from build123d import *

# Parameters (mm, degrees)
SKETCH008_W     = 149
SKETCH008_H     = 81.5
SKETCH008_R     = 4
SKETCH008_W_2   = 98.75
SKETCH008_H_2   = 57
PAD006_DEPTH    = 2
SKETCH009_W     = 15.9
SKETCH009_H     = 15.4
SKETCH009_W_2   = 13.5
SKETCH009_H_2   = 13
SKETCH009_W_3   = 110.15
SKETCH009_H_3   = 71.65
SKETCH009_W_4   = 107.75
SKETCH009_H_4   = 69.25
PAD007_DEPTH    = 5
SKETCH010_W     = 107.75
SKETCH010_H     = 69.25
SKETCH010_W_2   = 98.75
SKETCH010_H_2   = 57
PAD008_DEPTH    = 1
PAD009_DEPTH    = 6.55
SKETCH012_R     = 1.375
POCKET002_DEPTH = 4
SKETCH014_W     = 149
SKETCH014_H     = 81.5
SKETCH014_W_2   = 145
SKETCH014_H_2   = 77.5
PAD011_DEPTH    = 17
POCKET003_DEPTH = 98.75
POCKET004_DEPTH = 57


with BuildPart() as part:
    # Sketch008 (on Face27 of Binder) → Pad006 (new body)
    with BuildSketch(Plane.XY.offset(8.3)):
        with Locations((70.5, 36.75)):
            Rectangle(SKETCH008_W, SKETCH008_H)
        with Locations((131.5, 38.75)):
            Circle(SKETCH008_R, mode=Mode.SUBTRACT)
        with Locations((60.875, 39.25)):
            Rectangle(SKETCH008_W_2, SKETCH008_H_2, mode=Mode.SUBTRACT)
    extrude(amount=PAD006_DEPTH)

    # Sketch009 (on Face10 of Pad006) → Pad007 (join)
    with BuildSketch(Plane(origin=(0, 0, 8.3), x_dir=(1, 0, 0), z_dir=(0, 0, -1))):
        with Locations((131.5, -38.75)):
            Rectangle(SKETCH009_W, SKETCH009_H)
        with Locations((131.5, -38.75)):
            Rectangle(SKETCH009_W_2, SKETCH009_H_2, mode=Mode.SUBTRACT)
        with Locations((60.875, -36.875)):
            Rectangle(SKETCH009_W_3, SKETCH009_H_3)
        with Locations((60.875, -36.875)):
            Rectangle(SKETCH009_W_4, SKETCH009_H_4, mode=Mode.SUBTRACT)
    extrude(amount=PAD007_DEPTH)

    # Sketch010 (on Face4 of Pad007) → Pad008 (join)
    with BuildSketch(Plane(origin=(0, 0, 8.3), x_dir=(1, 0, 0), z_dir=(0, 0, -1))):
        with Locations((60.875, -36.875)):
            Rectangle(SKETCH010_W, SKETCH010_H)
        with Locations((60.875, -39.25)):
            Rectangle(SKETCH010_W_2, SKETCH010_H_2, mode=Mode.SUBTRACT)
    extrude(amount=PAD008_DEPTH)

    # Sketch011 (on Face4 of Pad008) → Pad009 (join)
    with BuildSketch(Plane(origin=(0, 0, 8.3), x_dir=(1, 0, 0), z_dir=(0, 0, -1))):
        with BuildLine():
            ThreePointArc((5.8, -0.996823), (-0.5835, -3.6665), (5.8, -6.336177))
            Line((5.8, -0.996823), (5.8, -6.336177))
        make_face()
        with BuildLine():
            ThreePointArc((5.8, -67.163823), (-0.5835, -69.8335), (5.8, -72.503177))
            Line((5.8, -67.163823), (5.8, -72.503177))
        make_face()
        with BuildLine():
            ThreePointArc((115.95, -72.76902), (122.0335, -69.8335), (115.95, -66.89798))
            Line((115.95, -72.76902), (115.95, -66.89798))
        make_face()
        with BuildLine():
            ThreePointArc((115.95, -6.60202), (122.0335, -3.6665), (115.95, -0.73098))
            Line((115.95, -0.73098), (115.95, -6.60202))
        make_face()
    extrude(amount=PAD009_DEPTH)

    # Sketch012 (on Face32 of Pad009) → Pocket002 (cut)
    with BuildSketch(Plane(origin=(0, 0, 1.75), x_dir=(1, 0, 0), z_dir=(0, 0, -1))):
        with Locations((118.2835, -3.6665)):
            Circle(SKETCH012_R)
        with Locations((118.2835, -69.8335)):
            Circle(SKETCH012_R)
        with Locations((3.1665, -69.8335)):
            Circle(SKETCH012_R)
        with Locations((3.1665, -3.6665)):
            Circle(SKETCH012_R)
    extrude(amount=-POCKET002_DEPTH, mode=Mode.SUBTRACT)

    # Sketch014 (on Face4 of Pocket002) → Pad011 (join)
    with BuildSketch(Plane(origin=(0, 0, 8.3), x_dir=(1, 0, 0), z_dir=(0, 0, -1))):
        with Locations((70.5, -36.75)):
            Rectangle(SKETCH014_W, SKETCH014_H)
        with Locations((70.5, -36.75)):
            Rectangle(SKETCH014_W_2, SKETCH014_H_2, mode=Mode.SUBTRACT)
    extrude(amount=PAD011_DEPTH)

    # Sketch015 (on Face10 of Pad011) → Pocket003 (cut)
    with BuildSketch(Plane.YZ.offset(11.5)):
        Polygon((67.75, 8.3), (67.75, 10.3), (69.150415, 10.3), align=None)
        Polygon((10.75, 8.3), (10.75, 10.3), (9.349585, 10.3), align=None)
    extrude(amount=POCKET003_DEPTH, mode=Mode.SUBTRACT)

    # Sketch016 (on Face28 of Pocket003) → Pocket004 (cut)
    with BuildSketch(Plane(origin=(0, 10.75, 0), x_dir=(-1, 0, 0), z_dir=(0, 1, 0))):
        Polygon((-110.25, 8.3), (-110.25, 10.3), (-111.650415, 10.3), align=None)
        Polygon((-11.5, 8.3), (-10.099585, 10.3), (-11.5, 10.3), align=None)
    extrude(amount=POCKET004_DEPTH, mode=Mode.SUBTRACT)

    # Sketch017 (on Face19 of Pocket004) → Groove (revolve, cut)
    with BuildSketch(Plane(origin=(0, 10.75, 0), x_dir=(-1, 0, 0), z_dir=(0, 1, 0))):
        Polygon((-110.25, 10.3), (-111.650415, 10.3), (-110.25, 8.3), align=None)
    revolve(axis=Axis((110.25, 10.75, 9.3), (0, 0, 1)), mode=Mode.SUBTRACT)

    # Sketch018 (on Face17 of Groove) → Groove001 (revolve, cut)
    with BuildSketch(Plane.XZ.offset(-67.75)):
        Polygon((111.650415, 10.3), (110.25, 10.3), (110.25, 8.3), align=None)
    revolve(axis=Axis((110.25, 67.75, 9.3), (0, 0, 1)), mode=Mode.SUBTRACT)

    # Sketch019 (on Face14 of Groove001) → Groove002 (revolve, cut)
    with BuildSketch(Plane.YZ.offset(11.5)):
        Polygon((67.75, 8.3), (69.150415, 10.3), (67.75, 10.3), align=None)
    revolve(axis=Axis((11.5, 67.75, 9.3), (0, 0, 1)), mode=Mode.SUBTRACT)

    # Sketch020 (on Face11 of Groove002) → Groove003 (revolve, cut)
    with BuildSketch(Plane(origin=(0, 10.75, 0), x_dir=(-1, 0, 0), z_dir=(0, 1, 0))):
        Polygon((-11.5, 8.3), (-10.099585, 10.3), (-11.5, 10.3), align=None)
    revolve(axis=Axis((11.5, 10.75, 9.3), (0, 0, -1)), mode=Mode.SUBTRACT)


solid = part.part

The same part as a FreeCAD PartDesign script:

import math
import FreeCAD as App
import Part
import Sketcher
from FreeCAD import Vector
Q = App.Units.Quantity


def add_polygon(sketch, points):
    """Adds a closed chain of lines whose ends are joined by coincident constraints."""
    first, n = sketch.GeometryCount, len(points)
    for a, b in zip(points, points[1:] + points[:1]):
        sketch.addGeometry(Part.LineSegment(App.Vector(*a, 0), App.Vector(*b, 0)), False)
    for i in range(n):
        sketch.addConstraint(Sketcher.Constraint("Coincident", first + i, 2, first + (i + 1) % n, 1))

doc = App.newDocument("Part")
body = doc.addObject("PartDesign::Body", "Body")

# Sketch on XY plane
sketch1 = body.newObject("Sketcher::SketchObject", "Sketch")
sketch1.AttachmentSupport = (doc.getObject("XY_Plane"), [""])
sketch1.MapMode = "FlatFace"
sketch1.AttachmentOffset = App.Placement(Vector(0, 0, 8.3), App.Rotation())
add_polygon(sketch1, [(-4, 77.5), (-4, -4), (145, -4), (145, 77.5)])  # lines 0-3
sketch1.addGeometry(Part.Circle(Vector(131.5, 38.8, 0), Vector(0, 0, 1), 4), False)  # 4
add_polygon(sketch1, [(110.2, 10.8), (11.5, 10.8), (11.5, 67.8), (110.2, 67.8)])  # lines 5-8
sketch1.addConstraint(Sketcher.Constraint("Vertical", 0))
sketch1.addConstraint(Sketcher.Constraint("Horizontal", 1))
sketch1.addConstraint(Sketcher.Constraint("Vertical", 2))
sketch1.addConstraint(Sketcher.Constraint("Horizontal", 3))
sketch1.addConstraint(Sketcher.Constraint("Horizontal", 5))
sketch1.addConstraint(Sketcher.Constraint("Vertical", 6))
sketch1.addConstraint(Sketcher.Constraint("Horizontal", 7))
sketch1.addConstraint(Sketcher.Constraint("Vertical", 8))
sketch1.addConstraint(Sketcher.Constraint("Diameter", 4, 8.0))
sketch1.addConstraint(Sketcher.Constraint("DistanceX", 1, 1, 1, 2, 149.0))
sketch1.addConstraint(Sketcher.Constraint("DistanceY", 6, 1, 6, 2, 57.0))
sketch1.addConstraint(Sketcher.Constraint("DistanceY", 0, 2, 0, 1, 81.5))
sketch1.addConstraint(Sketcher.Constraint("DistanceX", 0, 2, -1, 1, 4.0))
sketch1.addConstraint(Sketcher.Constraint("DistanceY", 0, 2, -1, 1, 4.0))
sketch1.addConstraint(Sketcher.Constraint("DistanceX", 5, 2, 4, 3, 120.0))
sketch1.addConstraint(Sketcher.Constraint("DistanceY", 5, 2, 4, 3, 28.0))
sketch1.addConstraint(Sketcher.Constraint("DistanceX", 5, 2, 5, 1, 98.75))
sketch1.addConstraint(Sketcher.Constraint("DistanceX", -1, 1, 4, 3, 131.5))
sketch1.addConstraint(Sketcher.Constraint("DistanceY", -1, 1, 4, 3, 38.75))
pad1 = body.newObject("PartDesign::Pad", "Pad")
pad1.Profile = sketch1
pad1.Length = 2

# Sketch on XY plane
sketch2 = body.newObject("Sketcher::SketchObject", "Sketch001")
sketch2.AttachmentSupport = (doc.getObject("XY_Plane"), [""])
sketch2.MapMode = "FlatFace"
sketch2.AttachmentOffset = App.Placement(Vector(0, 0, 8.3), App.Rotation())
add_polygon(sketch2, [(124, 31), (124, 46), (139, 46), (139, 31)])  # lines 0-3
add_polygon(sketch2, [(138, 45), (125, 45), (125, 32), (138, 32)])  # lines 4-7
add_polygon(sketch2, [(6, 1), (6, 73), (116, 73), (116, 1)])  # lines 8-11
add_polygon(sketch2, [(115, 72), (7, 72), (7, 2), (115, 2)])  # lines 12-15
sketch2.addConstraint(Sketcher.Constraint("Vertical", 0))
sketch2.addConstraint(Sketcher.Constraint("Horizontal", 1))
sketch2.addConstraint(Sketcher.Constraint("Vertical", 2))
sketch2.addConstraint(Sketcher.Constraint("Horizontal", 3))
sketch2.addConstraint(Sketcher.Constraint("Horizontal", 4))
sketch2.addConstraint(Sketcher.Constraint("Vertical", 5))
sketch2.addConstraint(Sketcher.Constraint("Horizontal", 6))
sketch2.addConstraint(Sketcher.Constraint("Vertical", 7))
sketch2.addConstraint(Sketcher.Constraint("Vertical", 8))
sketch2.addConstraint(Sketcher.Constraint("Horizontal", 9))
sketch2.addConstraint(Sketcher.Constraint("Vertical", 10))
sketch2.addConstraint(Sketcher.Constraint("Horizontal", 11))
sketch2.addConstraint(Sketcher.Constraint("Horizontal", 12))
sketch2.addConstraint(Sketcher.Constraint("Vertical", 13))
sketch2.addConstraint(Sketcher.Constraint("Horizontal", 14))
sketch2.addConstraint(Sketcher.Constraint("Vertical", 15))
sketch2.addConstraint(Sketcher.Constraint("DistanceY", 5, 2, 5, 1, 13.0))
sketch2.addConstraint(Sketcher.Constraint("DistanceX", 1, 1, 1, 2, 15.9))
sketch2.addConstraint(Sketcher.Constraint("DistanceX", 4, 2, 4, 1, 13.5))
sketch2.addConstraint(Sketcher.Constraint("DistanceY", 0, 1, 0, 2, 15.4))
sketch2.addConstraint(Sketcher.Constraint("DistanceX", -1, 1, 12, 2, 7.0))
sketch2.addConstraint(Sketcher.Constraint("DistanceY", 10, 2, 3, 2, 30.0))
sketch2.addConstraint(Sketcher.Constraint("DistanceX", 14, 2, 5, 2, 10.0))
sketch2.addConstraint(Sketcher.Constraint("DistanceY", 14, 2, 5, 2, 30.0))
sketch2.addConstraint(Sketcher.Constraint("DistanceX", 9, 1, 9, 2, 110.15))
sketch2.addConstraint(Sketcher.Constraint("DistanceX", 12, 2, 12, 1, 107.75))
sketch2.addConstraint(Sketcher.Constraint("DistanceY", 8, 1, 8, 2, 71.65))
sketch2.addConstraint(Sketcher.Constraint("DistanceY", 13, 2, 13, 1, 69.25))
sketch2.addConstraint(Sketcher.Constraint("DistanceX", -1, 1, 8, 2, 5.8))
sketch2.addConstraint(Sketcher.Constraint("DistanceY", -1, 1, 8, 2, 72.7))
sketch2.addConstraint(Sketcher.Constraint("DistanceY", -1, 1, 12, 2, 71.5))
sketch2.addConstraint(Sketcher.Constraint("DistanceX", 0, 2, 4, 2, 1.2))
pad2 = body.newObject("PartDesign::Pad", "Pad001")
pad2.Profile = sketch2
pad2.Length = 5
pad2.Reversed = True

# Sketch on XY plane
sketch3 = body.newObject("Sketcher::SketchObject", "Sketch002")
sketch3.AttachmentSupport = (doc.getObject("XY_Plane"), [""])
sketch3.MapMode = "FlatFace"
sketch3.AttachmentOffset = App.Placement(Vector(0, 0, 8.3), App.Rotation())
add_polygon(sketch3, [(7, 2), (7, 72), (115, 72), (115, 2)])  # lines 0-3
add_polygon(sketch3, [(110, 68), (12, 68), (12, 11), (110, 11)])  # lines 4-7
sketch3.addConstraint(Sketcher.Constraint("Vertical", 0))
sketch3.addConstraint(Sketcher.Constraint("Horizontal", 1))
sketch3.addConstraint(Sketcher.Constraint("Vertical", 2))
sketch3.addConstraint(Sketcher.Constraint("Horizontal", 3))
sketch3.addConstraint(Sketcher.Constraint("Horizontal", 4))
sketch3.addConstraint(Sketcher.Constraint("Vertical", 5))
sketch3.addConstraint(Sketcher.Constraint("Horizontal", 6))
sketch3.addConstraint(Sketcher.Constraint("Vertical", 7))
sketch3.addConstraint(Sketcher.Constraint("DistanceY", 5, 2, 5, 1, 57.0))
sketch3.addConstraint(Sketcher.Constraint("DistanceX", -1, 1, 0, 2, 7.0))
sketch3.addConstraint(Sketcher.Constraint("DistanceX", 1, 1, 1, 2, 107.75))
sketch3.addConstraint(Sketcher.Constraint("DistanceX", 4, 2, 4, 1, 98.75))
sketch3.addConstraint(Sketcher.Constraint("DistanceY", 0, 1, 0, 2, 69.25))
sketch3.addConstraint(Sketcher.Constraint("DistanceY", -1, 1, 0, 2, 71.5))
sketch3.addConstraint(Sketcher.Constraint("DistanceX", -1, 1, 4, 2, 11.5))
sketch3.addConstraint(Sketcher.Constraint("DistanceY", 3, 2, 4, 2, 65.5))
pad3 = body.newObject("PartDesign::Pad", "Pad002")
pad3.Profile = sketch3
pad3.Length = 1
pad3.Reversed = True

# Sketch on XY plane
sketch4 = body.newObject("Sketcher::SketchObject", "Sketch003")
sketch4.AttachmentSupport = (doc.getObject("XY_Plane"), [""])
sketch4.MapMode = "FlatFace"
sketch4.AttachmentOffset = App.Placement(Vector(0, 0, 8.3), App.Rotation())
sketch4.addGeometry(Part.ArcOfCircle(Part.Circle(Vector(3.2, 3.7, 0), Vector(0, 0, 1), 3.7), math.radians(45), math.radians(315)), False)
sketch4.addGeometry(Part.LineSegment(Vector(5.8, 6.3, 0), Vector(5.8, 1, 0)), False)
sketch4.addGeometry(Part.ArcOfCircle(Part.Circle(Vector(3.2, 69.8, 0), Vector(0, 0, 1), 3.7), math.radians(45), math.radians(315)), False)
sketch4.addGeometry(Part.LineSegment(Vector(5.8, 72.5, 0), Vector(5.8, 67.2, 0)), False)
sketch4.addGeometry(Part.ArcOfCircle(Part.Circle(Vector(118.3, 69.8, 0), Vector(0, 0, 1), 3.7), math.radians(-128), math.radians(128)), False)
sketch4.addGeometry(Part.LineSegment(Vector(116, 66.9, 0), Vector(116, 72.8, 0)), False)
sketch4.addGeometry(Part.ArcOfCircle(Part.Circle(Vector(118.3, 3.7, 0), Vector(0, 0, 1), 3.7), math.radians(-128), math.radians(128)), False)
sketch4.addGeometry(Part.LineSegment(Vector(116, 0.7, 0), Vector(116, 6.6, 0)), False)
sketch4.addConstraint(Sketcher.Constraint("Coincident", 0, 1, 1, 1))
sketch4.addConstraint(Sketcher.Constraint("Coincident", 1, 2, 0, 2))
sketch4.addConstraint(Sketcher.Constraint("Coincident", 2, 1, 3, 1))
sketch4.addConstraint(Sketcher.Constraint("Coincident", 3, 2, 2, 2))
sketch4.addConstraint(Sketcher.Constraint("Coincident", 4, 1, 5, 1))
sketch4.addConstraint(Sketcher.Constraint("Coincident", 5, 2, 4, 2))
sketch4.addConstraint(Sketcher.Constraint("Coincident", 6, 1, 7, 1))
sketch4.addConstraint(Sketcher.Constraint("Coincident", 7, 2, 6, 2))
sketch4.addConstraint(Sketcher.Constraint("Vertical", 1))
sketch4.addConstraint(Sketcher.Constraint("Vertical", 3))
sketch4.addConstraint(Sketcher.Constraint("Vertical", 5))
sketch4.addConstraint(Sketcher.Constraint("Vertical", 7))
sketch4.addConstraint(Sketcher.Constraint("Equal", 0, 2))
sketch4.addConstraint(Sketcher.Constraint("Equal", 2, 4))
sketch4.addConstraint(Sketcher.Constraint("Equal", 4, 6))
sketch4.addConstraint(Sketcher.Constraint("Horizontal", 2, 3, 4, 3))
sketch4.addConstraint(Sketcher.Constraint("Horizontal", 0, 3, 6, 3))
sketch4.addConstraint(Sketcher.Constraint("Vertical", 0, 3, 2, 3))
sketch4.addConstraint(Sketcher.Constraint("Vertical", 4, 3, 6, 3))
sketch4.addConstraint(Sketcher.Constraint("Vertical", 1, 2, 2, 1))
sketch4.addConstraint(Sketcher.Constraint("Vertical", 5, 2, 6, 1))
sketch4.addConstraint(Sketcher.Constraint("Radius", 0, 3.75))
sketch4.addConstraint(Sketcher.Constraint("DistanceX", -1, 1, 0, 1, 5.8))
sketch4.addConstraint(Sketcher.Constraint("DistanceX", -1, 1, 4, 1, 115.95))
sketch4.addConstraint(Sketcher.Constraint("DistanceY", 0, 3, 2, 3, 66.167))
sketch4.addConstraint(Sketcher.Constraint("DistanceX", 2, 3, 4, 3, 115.117))
sketch4.addConstraint(Sketcher.Constraint("DistanceY", 5, 1, 5, 2, 5.87104))
sketch4.addConstraint(Sketcher.Constraint("DistanceY", -1, 1, 0, 3, 3.6665))
pad4 = body.newObject("PartDesign::Pad", "Pad003")
pad4.Profile = sketch4
pad4.Length = 6.55
pad4.Reversed = True

# Sketch on XY plane
sketch5 = body.newObject("Sketcher::SketchObject", "Sketch004")
sketch5.AttachmentSupport = (doc.getObject("XY_Plane"), [""])
sketch5.MapMode = "FlatFace"
sketch5.AttachmentOffset = App.Placement(Vector(0, 0, 1.75), App.Rotation())
sketch5.addGeometry(Part.Circle(Vector(118.3, 3.7, 0), Vector(0, 0, 1), 1.4), False)
sketch5.addGeometry(Part.Circle(Vector(118.3, 69.8, 0), Vector(0, 0, 1), 1.4), False)
sketch5.addGeometry(Part.Circle(Vector(3.2, 69.8, 0), Vector(0, 0, 1), 1.4), False)
sketch5.addGeometry(Part.Circle(Vector(3.2, 3.7, 0), Vector(0, 0, 1), 1.4), False)
sketch5.addConstraint(Sketcher.Constraint("Equal", 0, 1))
sketch5.addConstraint(Sketcher.Constraint("Equal", 1, 2))
sketch5.addConstraint(Sketcher.Constraint("Equal", 2, 3))
sketch5.addConstraint(Sketcher.Constraint("Horizontal", 1, 3, 2, 3))
sketch5.addConstraint(Sketcher.Constraint("Horizontal", 0, 3, 3, 3))
sketch5.addConstraint(Sketcher.Constraint("Vertical", 0, 3, 1, 3))
sketch5.addConstraint(Sketcher.Constraint("Vertical", 2, 3, 3, 3))
sketch5.addConstraint(Sketcher.Constraint("Diameter", 0, 2.75))
sketch5.addConstraint(Sketcher.Constraint("DistanceY", 0, 3, 1, 3, 66.167))
sketch5.addConstraint(Sketcher.Constraint("DistanceX", 2, 3, 1, 3, 115.117))
sketch5.addConstraint(Sketcher.Constraint("DistanceX", -1, 1, 0, 3, 118.2835))
sketch5.addConstraint(Sketcher.Constraint("DistanceY", -1, 1, 0, 3, 3.6665))
pocket1 = body.newObject("PartDesign::Pocket", "Pocket")
pocket1.Profile = sketch5
pocket1.Length = 4
pocket1.Reversed = True

# Sketch on XY plane
sketch6 = body.newObject("Sketcher::SketchObject", "Sketch005")
sketch6.AttachmentSupport = (doc.getObject("XY_Plane"), [""])
sketch6.MapMode = "FlatFace"
sketch6.AttachmentOffset = App.Placement(Vector(0, 0, 8.3), App.Rotation())
add_polygon(sketch6, [(-4, -4), (-4, 78), (145, 78), (145, -4)])  # lines 0-3
add_polygon(sketch6, [(143, 76), (-2, 76), (-2, -2), (143, -2)])  # lines 4-7
sketch6.addConstraint(Sketcher.Constraint("Vertical", 0))
sketch6.addConstraint(Sketcher.Constraint("Horizontal", 1))
sketch6.addConstraint(Sketcher.Constraint("Vertical", 2))
sketch6.addConstraint(Sketcher.Constraint("Horizontal", 3))
sketch6.addConstraint(Sketcher.Constraint("Horizontal", 4))
sketch6.addConstraint(Sketcher.Constraint("Vertical", 5))
sketch6.addConstraint(Sketcher.Constraint("Horizontal", 6))
sketch6.addConstraint(Sketcher.Constraint("Vertical", 7))
sketch6.addConstraint(Sketcher.Constraint("DistanceX", 1, 1, 1, 2, 149.0))
sketch6.addConstraint(Sketcher.Constraint("DistanceX", 4, 2, 4, 1, 145.0))
sketch6.addConstraint(Sketcher.Constraint("DistanceY", 0, 1, 0, 2, 81.5))
sketch6.addConstraint(Sketcher.Constraint("DistanceY", 5, 2, 5, 1, 77.5))
sketch6.addConstraint(Sketcher.Constraint("DistanceX", 0, 2, -1, 1, 4.0))
sketch6.addConstraint(Sketcher.Constraint("DistanceY", 2, 2, -1, 1, 4.0))
sketch6.addConstraint(Sketcher.Constraint("DistanceX", 4, 2, -1, 1, 2.0))
sketch6.addConstraint(Sketcher.Constraint("DistanceY", 5, 2, -1, 1, 2.0))
pad5 = body.newObject("PartDesign::Pad", "Pad004")
pad5.Profile = sketch6
pad5.Length = 17
pad5.Reversed = True

# Sketch on YZ plane
sketch7 = body.newObject("Sketcher::SketchObject", "Sketch006")
sketch7.AttachmentSupport = (doc.getObject("YZ_Plane"), [""])
sketch7.MapMode = "FlatFace"
sketch7.AttachmentOffset = App.Placement(Vector(0, 0, 11.5), App.Rotation())
add_polygon(sketch7, [(67.8, 10.3), (67.8, 8.3), (69.2, 10.3)])  # lines 0-2
add_polygon(sketch7, [(10.8, 8.3), (10.8, 10.3), (9.3, 10.3)])  # lines 3-5
sketch7.addConstraint(Sketcher.Constraint("Vertical", 0))
sketch7.addConstraint(Sketcher.Constraint("Horizontal", 2))
sketch7.addConstraint(Sketcher.Constraint("Vertical", 3))
sketch7.addConstraint(Sketcher.Constraint("Horizontal", 4))
sketch7.addConstraint(Sketcher.Constraint("Horizontal", 2, 2, 3, 2))
sketch7.addConstraint(Sketcher.Constraint("Horizontal", 0, 2, 5, 2))
sketch7.addConstraint(Sketcher.Constraint("Equal", 2, 4))
sketch7.addConstraint(Sketcher.Constraint("DistanceY", 0, 2, 0, 1, 2.0))
sketch7.addConstraint(Sketcher.Constraint("Angle", 1, Q("55.000001 deg")))
sketch7.addConstraint(Sketcher.Constraint("DistanceX", 3, 2, 2, 2, 57.0))
sketch7.addConstraint(Sketcher.Constraint("DistanceY", -1, 1, 0, 2, 8.3))
sketch7.addConstraint(Sketcher.Constraint("DistanceX", -1, 1, 0, 2, 67.75))
pocket2 = body.newObject("PartDesign::Pocket", "Pocket001")
pocket2.Profile = sketch7
pocket2.Length = 98.75
pocket2.Reversed = True

# Sketch on XZ plane
sketch8 = body.newObject("Sketcher::SketchObject", "Sketch007")
sketch8.AttachmentSupport = (doc.getObject("XZ_Plane"), [""])
sketch8.MapMode = "FlatFace"
sketch8.AttachmentOffset = App.Placement(Vector(0, 0, -10.75), App.Rotation())
add_polygon(sketch8, [(110.2, 8.3), (110.2, 10.3), (111.7, 10.3)])  # lines 0-2
add_polygon(sketch8, [(11.5, 8.3), (10.1, 10.3), (11.5, 10.3)])  # lines 3-5
sketch8.addConstraint(Sketcher.Constraint("Vertical", 0))
sketch8.addConstraint(Sketcher.Constraint("Horizontal", 1))
sketch8.addConstraint(Sketcher.Constraint("Horizontal", 4))
sketch8.addConstraint(Sketcher.Constraint("Vertical", 5))
sketch8.addConstraint(Sketcher.Constraint("Horizontal", 1, 2, 3, 2))
sketch8.addConstraint(Sketcher.Constraint("Horizontal", 2, 2, 5, 2))
sketch8.addConstraint(Sketcher.Constraint("Equal", 1, 4))
sketch8.addConstraint(Sketcher.Constraint("DistanceY", 0, 1, 0, 2, 2.0))
sketch8.addConstraint(Sketcher.Constraint("Angle", 2, Q("-124.999999 deg")))
sketch8.addConstraint(Sketcher.Constraint("DistanceY", -1, 1, 0, 2, 10.3))
sketch8.addConstraint(Sketcher.Constraint("DistanceX", -1, 1, 4, 2, 11.5))
sketch8.addConstraint(Sketcher.Constraint("DistanceX", -1, 1, 0, 2, 110.25))
pocket3 = body.newObject("PartDesign::Pocket", "Pocket002")
pocket3.Profile = sketch8
pocket3.Length = 57

# Sketch on XZ plane
sketch9 = body.newObject("Sketcher::SketchObject", "Sketch008")
sketch9.AttachmentSupport = (doc.getObject("XZ_Plane"), [""])
sketch9.MapMode = "FlatFace"
sketch9.AttachmentOffset = App.Placement(Vector(0, 0, -10.75), App.Rotation())
add_polygon(sketch9, [(110.2, 10.3), (111.7, 10.3), (110.2, 8.3)])  # lines 0-2
sketch9.addGeometry(Part.LineSegment(Vector(110.2, 8.3, 0), Vector(110.2, 10.3, 0)), True)  # axis
sketch9.addConstraint(Sketcher.Constraint("Horizontal", 0))
sketch9.addConstraint(Sketcher.Constraint("Vertical", 2))
sketch9.addConstraint(Sketcher.Constraint("Vertical", 3))
sketch9.addConstraint(Sketcher.Constraint("Coincident", 3, 1, 1, 2))
sketch9.addConstraint(Sketcher.Constraint("Horizontal", 0, 2, 3, 2))
sketch9.addConstraint(Sketcher.Constraint("DistanceY", 2, 1, 2, 2, 2.0))
sketch9.addConstraint(Sketcher.Constraint("Angle", 1, Q("-124.999999 deg")))
sketch9.addConstraint(Sketcher.Constraint("DistanceY", -1, 1, 0, 2, 10.3))
sketch9.addConstraint(Sketcher.Constraint("DistanceX", -1, 1, 1, 2, 110.25))
groove = body.newObject("PartDesign::Groove", "Groove")
groove.Profile = sketch9
groove.ReferenceAxis = (sketch9, ["Axis0"])
groove.Angle = 360

# Sketch on XZ plane
sketch10 = body.newObject("Sketcher::SketchObject", "Sketch009")
sketch10.AttachmentSupport = (doc.getObject("XZ_Plane"), [""])
sketch10.MapMode = "FlatFace"
sketch10.AttachmentOffset = App.Placement(Vector(0, 0, -67.75), App.Rotation())
add_polygon(sketch10, [(111.7, 10.3), (110.2, 10.3), (110.2, 8.3)])  # lines 0-2
sketch10.addGeometry(Part.LineSegment(Vector(110.2, 8.3, 0), Vector(110.2, 10.3, 0)), True)  # axis
sketch10.addConstraint(Sketcher.Constraint("Horizontal", 0))
sketch10.addConstraint(Sketcher.Constraint("Vertical", 1))
sketch10.addConstraint(Sketcher.Constraint("Vertical", 3))
sketch10.addConstraint(Sketcher.Constraint("Coincident", 3, 1, 1, 2))
sketch10.addConstraint(Sketcher.Constraint("Horizontal", 2, 2, 3, 2))
sketch10.addConstraint(Sketcher.Constraint("DistanceY", 1, 2, 1, 1, 2.0))
sketch10.addConstraint(Sketcher.Constraint("Angle", 2, Q("55.000001 deg")))
sketch10.addConstraint(Sketcher.Constraint("DistanceY", -1, 1, 0, 2, 10.3))
sketch10.addConstraint(Sketcher.Constraint("DistanceX", -1, 1, 0, 2, 110.25))
groove2 = body.newObject("PartDesign::Groove", "Groove001")
groove2.Profile = sketch10
groove2.ReferenceAxis = (sketch10, ["Axis0"])
groove2.Angle = 360

# Sketch on YZ plane
sketch11 = body.newObject("Sketcher::SketchObject", "Sketch010")
sketch11.AttachmentSupport = (doc.getObject("YZ_Plane"), [""])
sketch11.MapMode = "FlatFace"
sketch11.AttachmentOffset = App.Placement(Vector(0, 0, 11.5), App.Rotation())
add_polygon(sketch11, [(67.8, 8.3), (69.2, 10.3), (67.8, 10.3)])  # lines 0-2
sketch11.addGeometry(Part.LineSegment(Vector(67.8, 8.3, 0), Vector(67.8, 10.3, 0)), True)  # axis
sketch11.addConstraint(Sketcher.Constraint("Horizontal", 1))
sketch11.addConstraint(Sketcher.Constraint("Vertical", 2))
sketch11.addConstraint(Sketcher.Constraint("Vertical", 3))
sketch11.addConstraint(Sketcher.Constraint("Coincident", 3, 1, 2, 2))
sketch11.addConstraint(Sketcher.Constraint("Horizontal", 0, 2, 3, 2))
sketch11.addConstraint(Sketcher.Constraint("DistanceY", 2, 2, 2, 1, 2.0))
sketch11.addConstraint(Sketcher.Constraint("Angle", 0, Q("55.000001 deg")))
sketch11.addConstraint(Sketcher.Constraint("DistanceY", -1, 1, 0, 2, 10.3))
sketch11.addConstraint(Sketcher.Constraint("DistanceX", -1, 1, 1, 2, 67.75))
groove3 = body.newObject("PartDesign::Groove", "Groove002")
groove3.Profile = sketch11
groove3.ReferenceAxis = (sketch11, ["Axis0"])
groove3.Angle = 360

# Sketch on XZ plane
sketch12 = body.newObject("Sketcher::SketchObject", "Sketch011")
sketch12.AttachmentSupport = (doc.getObject("XZ_Plane"), [""])
sketch12.MapMode = "FlatFace"
sketch12.AttachmentOffset = App.Placement(Vector(0, 0, -10.75), App.Rotation())
add_polygon(sketch12, [(11.5, 8.3), (10.1, 10.3), (11.5, 10.3)])  # lines 0-2
sketch12.addGeometry(Part.LineSegment(Vector(11.5, 10.3, 0), Vector(11.5, 8.3, 0)), True)  # axis
sketch12.addConstraint(Sketcher.Constraint("Horizontal", 1))
sketch12.addConstraint(Sketcher.Constraint("Vertical", 2))
sketch12.addConstraint(Sketcher.Constraint("Vertical", 3))
sketch12.addConstraint(Sketcher.Constraint("Coincident", 3, 1, 1, 2))
sketch12.addConstraint(Sketcher.Constraint("Equal", 2, 3))
sketch12.addConstraint(Sketcher.Constraint("DistanceY", 2, 2, 2, 1, 2.0))
sketch12.addConstraint(Sketcher.Constraint("Angle", 0, Q("124.999999 deg")))
sketch12.addConstraint(Sketcher.Constraint("DistanceY", -1, 1, 0, 2, 10.3))
sketch12.addConstraint(Sketcher.Constraint("DistanceX", -1, 1, 1, 2, 11.5))
groove4 = body.newObject("PartDesign::Groove", "Groove003")
groove4.Profile = sketch12
groove4.ReferenceAxis = (sketch12, ["Axis0"])
groove4.Angle = 360

doc.recompute()
